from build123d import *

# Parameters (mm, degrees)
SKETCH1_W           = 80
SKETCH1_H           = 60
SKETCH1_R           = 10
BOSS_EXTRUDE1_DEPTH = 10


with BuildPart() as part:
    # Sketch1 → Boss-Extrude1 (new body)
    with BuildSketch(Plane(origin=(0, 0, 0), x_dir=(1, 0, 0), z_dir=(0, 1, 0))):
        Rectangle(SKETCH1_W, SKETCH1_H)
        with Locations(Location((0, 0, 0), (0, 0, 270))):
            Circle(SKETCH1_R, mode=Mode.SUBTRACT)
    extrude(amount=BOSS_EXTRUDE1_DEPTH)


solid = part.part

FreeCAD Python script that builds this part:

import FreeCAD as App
import Part
import Sketcher
from FreeCAD import Vector


def add_polygon(sketch, points):
    """Adds a closed chain of lines whose ends are joined by coincident constraints."""
    first, n = sketch.GeometryCount, len(points)
    for a, b in zip(points, points[1:] + points[:1]):
        sketch.addGeometry(Part.LineSegment(App.Vector(*a, 0), App.Vector(*b, 0)), False)
    for i in range(n):
        sketch.addConstraint(Sketcher.Constraint("Coincident", first + i, 2, first + (i + 1) % n, 1))

doc = App.newDocument("Part")
body = doc.addObject("PartDesign::Body", "Body")

# Sketch on XZ plane
sketch1 = body.newObject("Sketcher::SketchObject", "Sketch")
sketch1.AttachmentSupport = (doc.getObject("XZ_Plane"), [""])
sketch1.MapMode = "FlatFace"
add_polygon(sketch1, [(-40, -30), (-40, 30), (40, 30), (40, -30)])  # lines 0-3
sketch1.addGeometry(Part.Circle(Vector(0, 0, 0), Vector(0, 0, 1), 10), False)  # 4
sketch1.addConstraint([
    Sketcher.Constraint("Vertical", 0),
    Sketcher.Constraint("Horizontal", 1),
    Sketcher.Constraint("Vertical", 2),
    Sketcher.Constraint("Horizontal", 3),
    Sketcher.Constraint("Coincident", 4, 3, -1, 1),
    Sketcher.Constraint("Symmetric", 0, 2, 2, 2, -1, 1),
    Sketcher.Constraint("Diameter", 4, 20.0),
    Sketcher.Constraint("DistanceX", 1, 1, 1, 2, 80.0),
    Sketcher.Constraint("DistanceY", 0, 1, 0, 2, 60.0),
])
pad1 = body.newObject("PartDesign::Pad", "Pad")
pad1.Profile = sketch1
pad1.Length = 10
pad1.Reversed = True

doc.recompute()
